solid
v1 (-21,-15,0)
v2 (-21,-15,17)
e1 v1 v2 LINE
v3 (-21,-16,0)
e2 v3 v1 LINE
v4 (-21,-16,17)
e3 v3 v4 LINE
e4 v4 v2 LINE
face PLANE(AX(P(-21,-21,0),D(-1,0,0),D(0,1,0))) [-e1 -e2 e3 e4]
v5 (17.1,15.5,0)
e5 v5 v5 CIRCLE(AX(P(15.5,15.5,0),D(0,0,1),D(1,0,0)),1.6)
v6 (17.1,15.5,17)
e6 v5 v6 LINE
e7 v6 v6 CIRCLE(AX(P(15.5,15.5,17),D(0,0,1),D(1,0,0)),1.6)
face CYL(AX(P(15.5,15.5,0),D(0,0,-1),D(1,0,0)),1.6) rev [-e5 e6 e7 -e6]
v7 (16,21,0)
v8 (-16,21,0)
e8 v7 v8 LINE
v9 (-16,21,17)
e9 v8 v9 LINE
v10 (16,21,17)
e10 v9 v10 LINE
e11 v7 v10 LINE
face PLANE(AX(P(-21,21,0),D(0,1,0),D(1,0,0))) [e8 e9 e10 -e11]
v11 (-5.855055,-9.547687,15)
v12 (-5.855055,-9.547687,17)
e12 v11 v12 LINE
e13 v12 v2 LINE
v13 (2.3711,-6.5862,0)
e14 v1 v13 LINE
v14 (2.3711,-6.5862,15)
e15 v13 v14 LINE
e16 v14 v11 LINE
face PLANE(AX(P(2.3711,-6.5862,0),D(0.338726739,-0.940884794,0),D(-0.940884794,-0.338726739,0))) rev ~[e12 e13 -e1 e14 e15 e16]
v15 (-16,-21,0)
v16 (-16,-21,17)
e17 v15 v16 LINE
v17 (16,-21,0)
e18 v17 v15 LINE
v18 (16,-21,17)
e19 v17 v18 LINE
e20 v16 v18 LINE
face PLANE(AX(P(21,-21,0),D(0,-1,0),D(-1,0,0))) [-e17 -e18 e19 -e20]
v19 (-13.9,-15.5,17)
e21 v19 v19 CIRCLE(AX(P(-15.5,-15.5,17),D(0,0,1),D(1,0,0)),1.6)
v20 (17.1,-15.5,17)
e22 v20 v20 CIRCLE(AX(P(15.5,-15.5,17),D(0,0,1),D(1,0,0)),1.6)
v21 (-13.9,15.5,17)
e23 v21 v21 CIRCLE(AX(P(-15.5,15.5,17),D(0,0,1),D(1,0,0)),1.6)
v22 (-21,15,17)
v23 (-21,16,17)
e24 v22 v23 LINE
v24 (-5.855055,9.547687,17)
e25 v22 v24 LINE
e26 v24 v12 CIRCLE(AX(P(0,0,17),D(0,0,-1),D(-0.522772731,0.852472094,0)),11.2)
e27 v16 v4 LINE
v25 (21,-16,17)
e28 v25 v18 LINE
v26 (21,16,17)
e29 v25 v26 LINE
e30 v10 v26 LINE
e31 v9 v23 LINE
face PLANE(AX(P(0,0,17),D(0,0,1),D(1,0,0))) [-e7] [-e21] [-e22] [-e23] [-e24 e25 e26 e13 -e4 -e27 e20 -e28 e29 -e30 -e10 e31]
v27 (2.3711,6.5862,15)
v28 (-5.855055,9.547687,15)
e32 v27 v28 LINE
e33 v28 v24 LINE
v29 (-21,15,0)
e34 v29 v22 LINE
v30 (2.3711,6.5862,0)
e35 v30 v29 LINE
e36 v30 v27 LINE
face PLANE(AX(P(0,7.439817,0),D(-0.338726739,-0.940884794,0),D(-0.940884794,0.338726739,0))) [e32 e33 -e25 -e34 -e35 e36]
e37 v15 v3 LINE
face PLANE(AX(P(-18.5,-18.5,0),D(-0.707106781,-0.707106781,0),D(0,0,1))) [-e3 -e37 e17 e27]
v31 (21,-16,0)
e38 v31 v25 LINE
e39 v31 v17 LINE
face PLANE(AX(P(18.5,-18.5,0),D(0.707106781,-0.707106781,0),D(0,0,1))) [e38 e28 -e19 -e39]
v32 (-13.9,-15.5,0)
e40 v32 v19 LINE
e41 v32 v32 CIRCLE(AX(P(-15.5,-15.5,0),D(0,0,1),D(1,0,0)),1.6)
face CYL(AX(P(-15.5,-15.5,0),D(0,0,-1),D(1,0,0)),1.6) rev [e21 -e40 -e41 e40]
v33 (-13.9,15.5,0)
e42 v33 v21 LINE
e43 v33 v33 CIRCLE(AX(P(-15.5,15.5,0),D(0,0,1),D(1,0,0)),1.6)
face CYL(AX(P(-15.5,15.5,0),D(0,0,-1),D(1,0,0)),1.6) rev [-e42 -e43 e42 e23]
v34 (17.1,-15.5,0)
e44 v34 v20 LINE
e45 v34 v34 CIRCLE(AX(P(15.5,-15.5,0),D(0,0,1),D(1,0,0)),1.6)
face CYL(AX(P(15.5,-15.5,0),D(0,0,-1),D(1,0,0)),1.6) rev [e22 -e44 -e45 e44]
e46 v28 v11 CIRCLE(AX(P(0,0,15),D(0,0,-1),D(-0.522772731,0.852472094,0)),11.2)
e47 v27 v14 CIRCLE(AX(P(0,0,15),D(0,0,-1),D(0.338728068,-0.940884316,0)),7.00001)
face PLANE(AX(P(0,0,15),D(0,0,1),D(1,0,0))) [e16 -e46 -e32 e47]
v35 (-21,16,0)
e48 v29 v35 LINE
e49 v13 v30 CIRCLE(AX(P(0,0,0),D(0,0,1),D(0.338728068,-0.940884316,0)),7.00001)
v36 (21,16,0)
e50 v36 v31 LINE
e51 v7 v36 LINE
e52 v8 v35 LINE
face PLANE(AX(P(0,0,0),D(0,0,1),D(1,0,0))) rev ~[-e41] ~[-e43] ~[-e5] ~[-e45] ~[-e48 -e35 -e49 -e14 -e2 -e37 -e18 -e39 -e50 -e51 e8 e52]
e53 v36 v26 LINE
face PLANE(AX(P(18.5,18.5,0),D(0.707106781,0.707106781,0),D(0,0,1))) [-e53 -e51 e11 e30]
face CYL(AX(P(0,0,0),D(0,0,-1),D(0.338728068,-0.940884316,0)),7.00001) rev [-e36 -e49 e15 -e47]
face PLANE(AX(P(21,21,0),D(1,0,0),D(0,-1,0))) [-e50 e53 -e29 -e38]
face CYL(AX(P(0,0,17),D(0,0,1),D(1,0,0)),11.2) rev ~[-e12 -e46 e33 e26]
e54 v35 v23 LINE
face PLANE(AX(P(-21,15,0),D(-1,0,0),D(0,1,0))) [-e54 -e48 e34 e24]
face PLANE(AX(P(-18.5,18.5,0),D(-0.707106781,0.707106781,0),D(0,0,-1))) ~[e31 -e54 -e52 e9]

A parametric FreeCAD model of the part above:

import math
import FreeCAD as App
import Part
import Sketcher


def edges_at(feature, points):
    """Names of the edges that pass closest to the given points."""
    edges = feature.Shape.Edges
    near = lambda p: min(range(len(edges)), key=lambda i: edges[i].distToShape(Part.Vertex(*p))[0])
    return sorted({f"Edge{near(p) + 1}" for p in points})

doc = App.newDocument("Part")
params = doc.addObject("Spreadsheet::Sheet", "Params")
for row, (alias, value) in enumerate([
    ("sketch1_radius", "7 mm"),
    ("sketch1_diameter", "3.2 mm"),
    ("sketch1_height", "6 mm"),
    ("pad1_length", "17 mm"),
    ("chamfer_size", "5 mm"),
    ("sketch2_diameter", "22.4 mm"),
    ("pocket1_length", "2 mm"),
], start=1):
    params.set(f"A{row}", alias)
    params.set(f"B{row}", "=" + value)
    params.setAlias(f"B{row}", alias)

body = doc.addObject("PartDesign::Body", "Body")

# Sketch on XY plane
sketch1 = doc.addObject("Sketcher::SketchObject", "Sketch")
body.addObject(sketch1)
sketch1.AttachmentSupport = (doc.XY_Plane, [""])
sketch1.MapMode = "FlatFace"
sketch1.addGeometry(Part.LineSegment(App.Vector(-21, 21, 0), App.Vector(-21, 15, 0)), False)
sketch1.addGeometry(Part.LineSegment(App.Vector(-21, 15, 0), App.Vector(2.4, 6.6, 0)), False)
sketch1.addGeometry(Part.ArcOfCircle(Part.Circle(App.Vector(0, 0, 0), App.Vector(0, 0, 1), 7), math.radians(-70), math.radians(70)), False)
sketch1.addGeometry(Part.LineSegment(App.Vector(2.4, -6.6, 0), App.Vector(-21, -15, 0)), False)
sketch1.addGeometry(Part.LineSegment(App.Vector(-21, -15, 0), App.Vector(-21, -21, 0)), False)
sketch1.addGeometry(Part.LineSegment(App.Vector(-21, -21, 0), App.Vector(21, -21, 0)), False)
sketch1.addGeometry(Part.LineSegment(App.Vector(21, -21, 0), App.Vector(21, 21, 0)), False)
sketch1.addGeometry(Part.LineSegment(App.Vector(21, 21, 0), App.Vector(-21, 21, 0)), False)
sketch1.addGeometry(Part.Circle(App.Vector(-15.5, 15.5, 0), App.Vector(0, 0, 1), 1.6), False)
sketch1.addGeometry(Part.Circle(App.Vector(15.5, 15.5, 0), App.Vector(0, 0, 1), 1.6), False)
sketch1.addGeometry(Part.Circle(App.Vector(15.5, -15.5, 0), App.Vector(0, 0, 1), 1.6), False)
sketch1.addGeometry(Part.Circle(App.Vector(-15.5, -15.5, 0), App.Vector(0, 0, 1), 1.6), False)
sketch1.addConstraint(Sketcher.Constraint("Coincident", 0, 2, 1, 1))
sketch1.addConstraint(Sketcher.Constraint("Tangent", 1, 2, 2, 2))
sketch1.addConstraint(Sketcher.Constraint("Tangent", 2, 1, 3, 1))
sketch1.addConstraint(Sketcher.Constraint("Coincident", 3, 2, 4, 1))
sketch1.addConstraint(Sketcher.Constraint("Coincident", 4, 2, 5, 1))
sketch1.addConstraint(Sketcher.Constraint("Coincident", 5, 2, 6, 1))
sketch1.addConstraint(Sketcher.Constraint("Coincident", 6, 2, 7, 1))
sketch1.addConstraint(Sketcher.Constraint("Coincident", 7, 2, 0, 1))
sketch1.addConstraint(Sketcher.Constraint("Vertical", 0))
sketch1.addConstraint(Sketcher.Constraint("Vertical", 4))
sketch1.addConstraint(Sketcher.Constraint("Horizontal", 5))
sketch1.addConstraint(Sketcher.Constraint("Vertical", 6))
sketch1.addConstraint(Sketcher.Constraint("Horizontal", 7))
sketch1.addConstraint(Sketcher.Constraint("Coincident", 2, 3, -1, 1))
sketch1.addConstraint(Sketcher.Constraint("Equal", 8, 9))
sketch1.addConstraint(Sketcher.Constraint("Equal", 9, 10))
sketch1.addConstraint(Sketcher.Constraint("Equal", 10, 11))
sketch1.addConstraint(Sketcher.Constraint("Symmetric", 8, 3, 10, 3, -1, 1))
sketch1.addConstraint(Sketcher.Constraint("Symmetric", 9, 3, 11, 3, -1, 1))
sketch1.addConstraint(Sketcher.Constraint("Symmetric", 4, 2, 6, 2, -1, 1))
sketch1.addConstraint(Sketcher.Constraint("Symmetric", 8, 3, 9, 3, -2))
sketch1.addConstraint(Sketcher.Constraint("Symmetric", 0, 2, 3, 2, -1))
sketch1.addConstraint(Sketcher.Constraint("Equal", 7, 6))
sketch1.addConstraint(Sketcher.Constraint("Radius", 2, 7.0))
sketch1.addConstraint(Sketcher.Constraint("Diameter", 8, 3.2))
sketch1.addConstraint(Sketcher.Constraint("DistanceY", 0, 2, 0, 1, 6.0))
sketch1.addConstraint(Sketcher.Constraint("DistanceX", 0, 2, -1, 1, 21.0))
sketch1.addConstraint(Sketcher.Constraint("DistanceX", 8, 3, -1, 1, 15.5))
sketch1.addConstraint(Sketcher.Constraint("DistanceY", -1, 1, 8, 3, 15.5))
sketch1.setExpression("Constraints[23]", "Params.sketch1_radius")
sketch1.setExpression("Constraints[24]", "Params.sketch1_diameter")
sketch1.setExpression("Constraints[25]", "Params.sketch1_height")
pad1 = doc.addObject("PartDesign::Pad", "Pad")
body.addObject(pad1)
pad1.Profile = sketch1
pad1.setExpression("Length", "Params.pad1_length")
doc.recompute()

chamfer = doc.addObject("PartDesign::Chamfer", "Chamfer")
body.addObject(chamfer)
chamfer.Base = (pad1, edges_at(pad1, [
    (-21, 21, 8.5),
    (-21, -21, 8.5),
    (21, 21, 8.5),
    (21, -21, 8.5),
]))
chamfer.setExpression("Size", "Params.chamfer_size")

# Sketch on XY plane
sketch2 = doc.addObject("Sketcher::SketchObject", "Sketch001")
body.addObject(sketch2)
sketch2.AttachmentSupport = (doc.XY_Plane, [""])
sketch2.MapMode = "FlatFace"
sketch2.AttachmentOffset = App.Placement(App.Vector(0, 0, 17), App.Rotation())
sketch2.addGeometry(Part.Circle(App.Vector(0, 0, 0), App.Vector(0, 0, 1), 11), False)
sketch2.addConstraint(Sketcher.Constraint("Coincident", 0, 3, -1, 1))
sketch2.addConstraint(Sketcher.Constraint("Diameter", 0, 22.4))
sketch2.setExpression("Constraints[1]", "Params.sketch2_diameter")
pocket1 = doc.addObject("PartDesign::Pocket", "Pocket")
body.addObject(pocket1)
pocket1.Profile = sketch2
pocket1.setExpression("Length", "Params.pocket1_length")

doc.recompute()
